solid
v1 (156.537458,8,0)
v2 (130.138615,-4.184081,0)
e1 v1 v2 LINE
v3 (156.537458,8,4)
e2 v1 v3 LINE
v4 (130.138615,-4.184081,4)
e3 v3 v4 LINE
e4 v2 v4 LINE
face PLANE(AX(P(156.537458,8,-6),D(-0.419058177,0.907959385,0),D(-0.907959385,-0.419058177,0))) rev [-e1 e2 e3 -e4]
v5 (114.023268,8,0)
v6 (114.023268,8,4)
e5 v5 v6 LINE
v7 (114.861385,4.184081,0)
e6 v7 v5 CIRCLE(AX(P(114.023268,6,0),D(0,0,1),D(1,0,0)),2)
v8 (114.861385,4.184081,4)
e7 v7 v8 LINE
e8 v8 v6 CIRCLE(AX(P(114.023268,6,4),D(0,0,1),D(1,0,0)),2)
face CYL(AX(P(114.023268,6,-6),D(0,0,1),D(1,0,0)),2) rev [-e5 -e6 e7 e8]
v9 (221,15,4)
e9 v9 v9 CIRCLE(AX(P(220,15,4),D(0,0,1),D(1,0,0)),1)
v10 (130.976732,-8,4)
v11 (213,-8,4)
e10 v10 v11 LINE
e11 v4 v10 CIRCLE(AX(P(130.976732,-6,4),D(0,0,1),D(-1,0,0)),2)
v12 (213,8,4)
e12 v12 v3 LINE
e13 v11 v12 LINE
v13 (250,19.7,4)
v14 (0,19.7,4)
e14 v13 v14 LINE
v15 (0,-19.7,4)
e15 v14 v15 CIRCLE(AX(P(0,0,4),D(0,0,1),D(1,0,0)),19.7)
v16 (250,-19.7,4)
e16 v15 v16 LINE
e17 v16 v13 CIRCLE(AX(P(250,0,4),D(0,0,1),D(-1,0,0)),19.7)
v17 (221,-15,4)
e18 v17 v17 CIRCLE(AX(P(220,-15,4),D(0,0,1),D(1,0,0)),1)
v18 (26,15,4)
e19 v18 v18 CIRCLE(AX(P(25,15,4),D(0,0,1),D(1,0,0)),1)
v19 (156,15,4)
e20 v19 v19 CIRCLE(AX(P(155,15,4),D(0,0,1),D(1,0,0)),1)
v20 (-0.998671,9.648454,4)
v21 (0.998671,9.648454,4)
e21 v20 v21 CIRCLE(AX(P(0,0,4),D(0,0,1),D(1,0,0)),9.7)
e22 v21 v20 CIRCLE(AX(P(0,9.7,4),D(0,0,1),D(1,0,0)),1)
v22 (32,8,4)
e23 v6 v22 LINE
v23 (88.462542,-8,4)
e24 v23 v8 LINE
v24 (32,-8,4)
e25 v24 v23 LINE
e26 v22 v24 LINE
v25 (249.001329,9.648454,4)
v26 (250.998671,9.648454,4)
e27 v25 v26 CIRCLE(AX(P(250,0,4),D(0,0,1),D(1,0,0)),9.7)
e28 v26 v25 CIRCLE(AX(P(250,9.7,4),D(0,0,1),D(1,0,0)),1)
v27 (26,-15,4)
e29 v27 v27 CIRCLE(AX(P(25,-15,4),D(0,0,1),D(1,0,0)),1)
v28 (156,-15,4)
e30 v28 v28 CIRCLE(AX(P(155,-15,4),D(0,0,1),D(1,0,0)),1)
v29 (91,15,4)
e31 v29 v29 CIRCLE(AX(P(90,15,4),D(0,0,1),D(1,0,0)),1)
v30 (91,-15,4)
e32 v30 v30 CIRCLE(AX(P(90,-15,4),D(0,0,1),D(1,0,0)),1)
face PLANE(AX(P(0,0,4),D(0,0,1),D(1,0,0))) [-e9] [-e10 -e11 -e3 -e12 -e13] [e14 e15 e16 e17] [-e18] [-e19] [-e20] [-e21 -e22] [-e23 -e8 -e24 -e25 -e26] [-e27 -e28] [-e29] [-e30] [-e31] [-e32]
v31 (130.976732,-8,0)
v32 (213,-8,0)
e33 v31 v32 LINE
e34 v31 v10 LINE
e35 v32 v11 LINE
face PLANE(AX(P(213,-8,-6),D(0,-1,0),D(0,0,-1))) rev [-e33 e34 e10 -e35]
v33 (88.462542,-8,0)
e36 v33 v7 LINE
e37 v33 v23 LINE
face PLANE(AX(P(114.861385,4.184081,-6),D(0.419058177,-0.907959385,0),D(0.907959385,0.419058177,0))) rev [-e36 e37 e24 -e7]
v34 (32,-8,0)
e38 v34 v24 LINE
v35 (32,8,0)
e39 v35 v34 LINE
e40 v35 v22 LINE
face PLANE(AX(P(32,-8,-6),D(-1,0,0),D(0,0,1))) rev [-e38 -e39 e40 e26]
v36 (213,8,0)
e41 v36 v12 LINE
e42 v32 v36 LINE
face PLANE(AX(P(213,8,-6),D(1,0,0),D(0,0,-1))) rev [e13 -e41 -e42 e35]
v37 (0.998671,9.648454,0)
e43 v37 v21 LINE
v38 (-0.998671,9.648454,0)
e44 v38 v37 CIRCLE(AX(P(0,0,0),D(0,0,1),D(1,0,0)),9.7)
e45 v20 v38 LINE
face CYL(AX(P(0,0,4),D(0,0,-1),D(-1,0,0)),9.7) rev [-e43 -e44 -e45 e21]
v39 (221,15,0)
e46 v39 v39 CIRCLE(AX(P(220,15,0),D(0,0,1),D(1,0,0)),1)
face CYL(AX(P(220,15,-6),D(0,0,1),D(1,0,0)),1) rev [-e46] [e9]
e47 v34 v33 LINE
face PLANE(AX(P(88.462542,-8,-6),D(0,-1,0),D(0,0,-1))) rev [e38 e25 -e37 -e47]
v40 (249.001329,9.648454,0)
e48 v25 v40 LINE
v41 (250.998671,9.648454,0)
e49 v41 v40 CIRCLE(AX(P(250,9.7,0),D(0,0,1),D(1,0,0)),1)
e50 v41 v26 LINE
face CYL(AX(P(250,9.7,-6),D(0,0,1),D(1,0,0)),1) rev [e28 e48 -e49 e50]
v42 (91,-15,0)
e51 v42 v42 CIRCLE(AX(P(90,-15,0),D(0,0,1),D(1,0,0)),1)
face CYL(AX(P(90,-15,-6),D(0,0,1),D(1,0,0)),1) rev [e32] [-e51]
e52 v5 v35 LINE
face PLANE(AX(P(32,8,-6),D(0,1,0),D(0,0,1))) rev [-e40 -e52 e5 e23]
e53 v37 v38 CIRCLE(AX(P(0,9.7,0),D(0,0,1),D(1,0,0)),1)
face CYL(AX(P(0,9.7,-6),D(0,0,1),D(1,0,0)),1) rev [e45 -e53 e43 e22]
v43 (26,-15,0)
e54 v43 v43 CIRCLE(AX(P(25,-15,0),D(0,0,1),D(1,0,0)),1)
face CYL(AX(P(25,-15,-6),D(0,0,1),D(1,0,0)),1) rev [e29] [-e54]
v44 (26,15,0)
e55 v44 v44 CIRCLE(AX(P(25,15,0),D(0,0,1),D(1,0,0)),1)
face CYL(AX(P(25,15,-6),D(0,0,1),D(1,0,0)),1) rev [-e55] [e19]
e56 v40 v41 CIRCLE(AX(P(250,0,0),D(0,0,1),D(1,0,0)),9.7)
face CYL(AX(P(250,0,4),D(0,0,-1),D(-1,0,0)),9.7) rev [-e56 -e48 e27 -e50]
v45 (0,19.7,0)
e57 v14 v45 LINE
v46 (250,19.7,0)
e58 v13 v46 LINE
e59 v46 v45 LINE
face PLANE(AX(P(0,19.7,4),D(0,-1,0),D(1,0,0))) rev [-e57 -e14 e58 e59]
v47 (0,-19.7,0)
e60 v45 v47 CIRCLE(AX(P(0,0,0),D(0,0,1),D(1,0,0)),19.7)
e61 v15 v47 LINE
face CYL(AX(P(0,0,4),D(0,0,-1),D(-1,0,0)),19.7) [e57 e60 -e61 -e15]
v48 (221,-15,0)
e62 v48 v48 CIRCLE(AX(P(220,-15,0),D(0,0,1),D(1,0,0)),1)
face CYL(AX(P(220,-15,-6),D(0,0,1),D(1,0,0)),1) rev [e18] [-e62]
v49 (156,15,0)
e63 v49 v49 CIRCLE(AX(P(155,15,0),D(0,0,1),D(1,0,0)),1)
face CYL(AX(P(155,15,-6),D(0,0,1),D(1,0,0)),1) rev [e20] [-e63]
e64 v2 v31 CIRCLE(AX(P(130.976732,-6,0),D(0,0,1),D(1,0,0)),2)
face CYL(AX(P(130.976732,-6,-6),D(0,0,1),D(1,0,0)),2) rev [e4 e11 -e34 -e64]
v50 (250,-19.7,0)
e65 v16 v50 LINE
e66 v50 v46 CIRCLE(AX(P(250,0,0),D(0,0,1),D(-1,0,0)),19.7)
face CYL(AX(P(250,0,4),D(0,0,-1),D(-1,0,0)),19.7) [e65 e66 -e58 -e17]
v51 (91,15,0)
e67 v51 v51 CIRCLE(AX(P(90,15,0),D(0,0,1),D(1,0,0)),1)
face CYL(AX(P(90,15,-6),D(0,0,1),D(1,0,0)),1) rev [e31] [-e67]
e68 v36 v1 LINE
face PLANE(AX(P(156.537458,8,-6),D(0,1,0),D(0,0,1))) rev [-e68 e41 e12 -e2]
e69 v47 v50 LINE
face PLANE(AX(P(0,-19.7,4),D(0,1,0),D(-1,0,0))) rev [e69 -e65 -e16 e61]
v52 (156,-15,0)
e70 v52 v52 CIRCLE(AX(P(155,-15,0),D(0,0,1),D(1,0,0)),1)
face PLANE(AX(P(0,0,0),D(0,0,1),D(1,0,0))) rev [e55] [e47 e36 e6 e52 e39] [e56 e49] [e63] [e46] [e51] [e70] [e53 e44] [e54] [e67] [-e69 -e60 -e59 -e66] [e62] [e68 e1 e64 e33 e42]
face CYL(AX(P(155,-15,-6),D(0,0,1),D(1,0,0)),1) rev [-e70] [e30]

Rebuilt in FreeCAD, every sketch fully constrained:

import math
import FreeCAD as App
import Part
import Sketcher

doc = App.newDocument("Part")
params = doc.addObject("Spreadsheet::Sheet", "Params")
for row, (alias, value) in enumerate([
    ("sketch1_diameter", "19.4 mm"),
    ("sketch1_radius", "19.7 mm"),
    ("sketch1_width", "250 mm"),
    ("pad1_length", "4 mm"),
    ("sketch2_diameter", "2 mm"),
    ("pocket1_length", "10 mm"),
    ("sketch3_radius", "2 mm"),
    ("sketch3_height", "16 mm"),
    ("pocket2_length", "10 mm"),
    ("sketch4_diameter", "2 mm"),
    ("pocket3_length", "10 mm"),
], start=1):
    params.set(f"A{row}", alias)
    params.set(f"B{row}", "=" + value)
    params.setAlias(f"B{row}", alias)

body = doc.addObject("PartDesign::Body", "Body")

# Sketch on XY plane
sketch1 = body.newObject("Sketcher::SketchObject", "Sketch")
sketch1.AttachmentSupport = (doc.getObject("XY_Plane"), [""])
sketch1.MapMode = "FlatFace"
sketch1.addGeometry(Part.LineSegment(App.Vector(250, 20, 0), App.Vector(0, 20, 0)), False)
sketch1.addGeometry(Part.ArcOfCircle(Part.Circle(App.Vector(0, 0, 0), App.Vector(0, 0, 1), 20), math.radians(90), math.radians(270)), False)
sketch1.addGeometry(Part.LineSegment(App.Vector(0, -20, 0), App.Vector(250, -20, 0)), False)
sketch1.addGeometry(Part.ArcOfCircle(Part.Circle(App.Vector(250, 0, 0), App.Vector(0, 0, 1), 20), math.radians(-90), math.radians(90)), False)
sketch1.addGeometry(Part.Circle(App.Vector(250, 0, 0), App.Vector(0, 0, 1), 10), False)
sketch1.addGeometry(Part.Circle(App.Vector(0, 0, 0), App.Vector(0, 0, 1), 10), False)
sketch1.addConstraint(Sketcher.Constraint("Tangent", 0, 2, 1, 1))
sketch1.addConstraint(Sketcher.Constraint("Tangent", 1, 2, 2, 1))
sketch1.addConstraint(Sketcher.Constraint("Tangent", 2, 2, 3, 1))
sketch1.addConstraint(Sketcher.Constraint("Tangent", 3, 2, 0, 1))
sketch1.addConstraint(Sketcher.Constraint("Horizontal", 0))
sketch1.addConstraint(Sketcher.Constraint("Horizontal", 2))
sketch1.addConstraint(Sketcher.Constraint("Coincident", 1, 3, -1, 1))
sketch1.addConstraint(Sketcher.Constraint("Coincident", 5, 3, -1, 1))
sketch1.addConstraint(Sketcher.Constraint("Coincident", 4, 3, 3, 3))
sketch1.addConstraint(Sketcher.Constraint("Equal", 4, 5))
sketch1.addConstraint(Sketcher.Constraint("Diameter", 4, 19.4))
sketch1.addConstraint(Sketcher.Constraint("Radius", 1, 19.7))
sketch1.addConstraint(Sketcher.Constraint("DistanceX", 0, 2, 0, 1, 250.0))
sketch1.setExpression("Constraints[10]", "Params.sketch1_diameter")
sketch1.setExpression("Constraints[11]", "Params.sketch1_radius")
sketch1.setExpression("Constraints[12]", "Params.sketch1_width")
pad1 = body.newObject("PartDesign::Pad", "Pad")
pad1.Profile = sketch1
pad1.setExpression("Length", "Params.pad1_length")

# Sketch on XY plane
sketch2 = body.newObject("Sketcher::SketchObject", "Sketch001")
sketch2.AttachmentSupport = (doc.getObject("XY_Plane"), [""])
sketch2.MapMode = "FlatFace"
sketch2.AttachmentOffset = App.Placement(App.Vector(0, 0, 4), App.Rotation())
sketch2.addGeometry(Part.Circle(App.Vector(25, 15, 0), App.Vector(0, 0, 1), 1), False)
sketch2.addGeometry(Part.Circle(App.Vector(90, 15, 0), App.Vector(0, 0, 1), 1), False)
sketch2.addGeometry(Part.Circle(App.Vector(155, 15, 0), App.Vector(0, 0, 1), 1), False)
sketch2.addGeometry(Part.Circle(App.Vector(220, 15, 0), App.Vector(0, 0, 1), 1), False)
sketch2.addGeometry(Part.Circle(App.Vector(90, -15, 0), App.Vector(0, 0, 1), 1), False)
sketch2.addGeometry(Part.Circle(App.Vector(155, -15, 0), App.Vector(0, 0, 1), 1), False)
sketch2.addGeometry(Part.Circle(App.Vector(220, -15, 0), App.Vector(0, 0, 1), 1), False)
sketch2.addGeometry(Part.Circle(App.Vector(25, -15, 0), App.Vector(0, 0, 1), 1), False)
sketch2.addConstraint(Sketcher.Constraint("Equal", 0, 1))
sketch2.addConstraint(Sketcher.Constraint("Equal", 1, 2))
sketch2.addConstraint(Sketcher.Constraint("Equal", 2, 3))
sketch2.addConstraint(Sketcher.Constraint("Equal", 3, 4))
sketch2.addConstraint(Sketcher.Constraint("Equal", 4, 5))
sketch2.addConstraint(Sketcher.Constraint("Equal", 5, 6))
sketch2.addConstraint(Sketcher.Constraint("Equal", 6, 7))
sketch2.addConstraint(Sketcher.Constraint("Symmetric", 1, 3, 4, 3, -1))
sketch2.addConstraint(Sketcher.Constraint("Symmetric", 2, 3, 5, 3, -1))
sketch2.addConstraint(Sketcher.Constraint("Symmetric", 3, 3, 6, 3, -1))
sketch2.addConstraint(Sketcher.Constraint("Symmetric", 0, 3, 7, 3, -1))
sketch2.addConstraint(Sketcher.Constraint("Horizontal", 0, 3, 1, 3))
sketch2.addConstraint(Sketcher.Constraint("Horizontal", 1, 3, 2, 3))
sketch2.addConstraint(Sketcher.Constraint("Horizontal", 2, 3, 3, 3))
sketch2.addConstraint(Sketcher.Constraint("Diameter", 0, 2.0))
sketch2.addConstraint(Sketcher.Constraint("DistanceX", -1, 1, 0, 3, 25.0))
sketch2.addConstraint(Sketcher.Constraint("DistanceY", -1, 1, 0, 3, 15.0))
sketch2.addConstraint(Sketcher.Constraint("DistanceX", -1, 1, 1, 3, 90.0))
sketch2.addConstraint(Sketcher.Constraint("DistanceX", -1, 1, 2, 3, 155.0))
sketch2.addConstraint(Sketcher.Constraint("DistanceX", -1, 1, 3, 3, 220.0))
sketch2.setExpression("Constraints[14]", "Params.sketch2_diameter")
pocket1 = body.newObject("PartDesign::Pocket", "Pocket")
pocket1.Profile = sketch2
pocket1.setExpression("Length", "Params.pocket1_length")

# Sketch on XY plane
sketch3 = body.newObject("Sketcher::SketchObject", "Sketch002")
sketch3.AttachmentSupport = (doc.getObject("XY_Plane"), [""])
sketch3.MapMode = "FlatFace"
sketch3.AttachmentOffset = App.Placement(App.Vector(0, 0, 4), App.Rotation())
sketch3.addGeometry(Part.LineSegment(App.Vector(114, 8, 0), App.Vector(32, 8, 0)), False)
sketch3.addGeometry(Part.LineSegment(App.Vector(32, 8, 0), App.Vector(32, -8, 0)), False)
sketch3.addGeometry(Part.LineSegment(App.Vector(32, -8, 0), App.Vector(88.5, -8, 0)), False)
sketch3.addGeometry(Part.LineSegment(App.Vector(88.5, -8, 0), App.Vector(114.9, 4.2, 0)), False)
sketch3.addGeometry(Part.ArcOfCircle(Part.Circle(App.Vector(114, 6, 0), App.Vector(0, 0, 1), 2), math.radians(-65), math.radians(90)), False)
sketch3.addGeometry(Part.LineSegment(App.Vector(156.5, 8, 0), App.Vector(130.1, -4.2, 0)), False)
sketch3.addGeometry(Part.ArcOfCircle(Part.Circle(App.Vector(131, -6, 0), App.Vector(0, 0, 1), 2), math.radians(115), math.radians(270)), False)
sketch3.addGeometry(Part.LineSegment(App.Vector(131, -8, 0), App.Vector(213, -8, 0)), False)
sketch3.addGeometry(Part.LineSegment(App.Vector(213, -8, 0), App.Vector(213, 8, 0)), False)
sketch3.addGeometry(Part.LineSegment(App.Vector(213, 8, 0), App.Vector(156.5, 8, 0)), False)
sketch3.addConstraint(Sketcher.Constraint("Coincident", 0, 2, 1, 1))
sketch3.addConstraint(Sketcher.Constraint("Coincident", 1, 2, 2, 1))
sketch3.addConstraint(Sketcher.Constraint("Coincident", 2, 2, 3, 1))
sketch3.addConstraint(Sketcher.Constraint("Tangent", 3, 2, 4, 1))
sketch3.addConstraint(Sketcher.Constraint("Tangent", 4, 2, 0, 1))
sketch3.addConstraint(Sketcher.Constraint("Tangent", 5, 2, 6, 1))
sketch3.addConstraint(Sketcher.Constraint("Tangent", 6, 2, 7, 1))
sketch3.addConstraint(Sketcher.Constraint("Coincident", 7, 2, 8, 1))
sketch3.addConstraint(Sketcher.Constraint("Coincident", 8, 2, 9, 1))
sketch3.addConstraint(Sketcher.Constraint("Coincident", 9, 2, 5, 1))
sketch3.addConstraint(Sketcher.Constraint("Horizontal", 0))
sketch3.addConstraint(Sketcher.Constraint("Vertical", 1))
sketch3.addConstraint(Sketcher.Constraint("Horizontal", 2))
sketch3.addConstraint(Sketcher.Constraint("Horizontal", 7))
sketch3.addConstraint(Sketcher.Constraint("Vertical", 8))
sketch3.addConstraint(Sketcher.Constraint("Horizontal", 9))
sketch3.addConstraint(Sketcher.Constraint("Equal", 4, 6))
sketch3.addConstraint(Sketcher.Constraint("Parallel", 3, 5))
sketch3.addConstraint(Sketcher.Constraint("Horizontal", 2, 2, 6, 2))
sketch3.addConstraint(Sketcher.Constraint("Horizontal", 4, 2, 8, 2))
sketch3.addConstraint(Sketcher.Constraint("Equal", 0, 7))
sketch3.addConstraint(Sketcher.Constraint("Radius", 4, 2.0))
sketch3.addConstraint(Sketcher.Constraint("DistanceY", 1, 2, 1, 1, 16.0))
sketch3.addConstraint(Sketcher.Constraint("DistanceY", -1, 1, 4, 3, 6.0))
sketch3.addConstraint(Sketcher.Constraint("DistanceX", -1, 1, 0, 2, 32.0))
sketch3.addConstraint(Sketcher.Constraint("DistanceX", -1, 1, 7, 2, 213.0))
sketch3.addConstraint(Sketcher.Constraint("DistanceX", 0, 2, 0, 1, 82.023268))
sketch3.addConstraint(Sketcher.Constraint("DistanceX", 2, 1, 2, 2, 56.462542))
sketch3.setExpression("Constraints[21]", "Params.sketch3_radius")
sketch3.setExpression("Constraints[22]", "Params.sketch3_height")
pocket2 = body.newObject("PartDesign::Pocket", "Pocket001")
pocket2.Profile = sketch3
pocket2.setExpression("Length", "Params.pocket2_length")

# Sketch on XY plane
sketch4 = body.newObject("Sketcher::SketchObject", "Sketch003")
sketch4.AttachmentSupport = (doc.getObject("XY_Plane"), [""])
sketch4.MapMode = "FlatFace"
sketch4.AttachmentOffset = App.Placement(App.Vector(0, 0, 4), App.Rotation())
sketch4.addGeometry(Part.Circle(App.Vector(0, 9.7, 0), App.Vector(0, 0, 1), 1), False)
sketch4.addGeometry(Part.Circle(App.Vector(250, 9.7, 0), App.Vector(0, 0, 1), 1), False)
sketch4.addConstraint(Sketcher.Constraint("Equal", 0, 1))
sketch4.addConstraint(Sketcher.Constraint("PointOnObject", 0, 3, -2))
sketch4.addConstraint(Sketcher.Constraint("Horizontal", 0, 3, 1, 3))
sketch4.addConstraint(Sketcher.Constraint("Diameter", 0, 2.0))
sketch4.addConstraint(Sketcher.Constraint("DistanceX", -1, 1, 1, 3, 250.0))
sketch4.addConstraint(Sketcher.Constraint("DistanceY", -1, 1, 0, 3, 9.7))
sketch4.setExpression("Constraints[3]", "Params.sketch4_diameter")
pocket3 = body.newObject("PartDesign::Pocket", "Pocket002")
pocket3.Profile = sketch4
pocket3.setExpression("Length", "Params.pocket3_length")

doc.recompute()
